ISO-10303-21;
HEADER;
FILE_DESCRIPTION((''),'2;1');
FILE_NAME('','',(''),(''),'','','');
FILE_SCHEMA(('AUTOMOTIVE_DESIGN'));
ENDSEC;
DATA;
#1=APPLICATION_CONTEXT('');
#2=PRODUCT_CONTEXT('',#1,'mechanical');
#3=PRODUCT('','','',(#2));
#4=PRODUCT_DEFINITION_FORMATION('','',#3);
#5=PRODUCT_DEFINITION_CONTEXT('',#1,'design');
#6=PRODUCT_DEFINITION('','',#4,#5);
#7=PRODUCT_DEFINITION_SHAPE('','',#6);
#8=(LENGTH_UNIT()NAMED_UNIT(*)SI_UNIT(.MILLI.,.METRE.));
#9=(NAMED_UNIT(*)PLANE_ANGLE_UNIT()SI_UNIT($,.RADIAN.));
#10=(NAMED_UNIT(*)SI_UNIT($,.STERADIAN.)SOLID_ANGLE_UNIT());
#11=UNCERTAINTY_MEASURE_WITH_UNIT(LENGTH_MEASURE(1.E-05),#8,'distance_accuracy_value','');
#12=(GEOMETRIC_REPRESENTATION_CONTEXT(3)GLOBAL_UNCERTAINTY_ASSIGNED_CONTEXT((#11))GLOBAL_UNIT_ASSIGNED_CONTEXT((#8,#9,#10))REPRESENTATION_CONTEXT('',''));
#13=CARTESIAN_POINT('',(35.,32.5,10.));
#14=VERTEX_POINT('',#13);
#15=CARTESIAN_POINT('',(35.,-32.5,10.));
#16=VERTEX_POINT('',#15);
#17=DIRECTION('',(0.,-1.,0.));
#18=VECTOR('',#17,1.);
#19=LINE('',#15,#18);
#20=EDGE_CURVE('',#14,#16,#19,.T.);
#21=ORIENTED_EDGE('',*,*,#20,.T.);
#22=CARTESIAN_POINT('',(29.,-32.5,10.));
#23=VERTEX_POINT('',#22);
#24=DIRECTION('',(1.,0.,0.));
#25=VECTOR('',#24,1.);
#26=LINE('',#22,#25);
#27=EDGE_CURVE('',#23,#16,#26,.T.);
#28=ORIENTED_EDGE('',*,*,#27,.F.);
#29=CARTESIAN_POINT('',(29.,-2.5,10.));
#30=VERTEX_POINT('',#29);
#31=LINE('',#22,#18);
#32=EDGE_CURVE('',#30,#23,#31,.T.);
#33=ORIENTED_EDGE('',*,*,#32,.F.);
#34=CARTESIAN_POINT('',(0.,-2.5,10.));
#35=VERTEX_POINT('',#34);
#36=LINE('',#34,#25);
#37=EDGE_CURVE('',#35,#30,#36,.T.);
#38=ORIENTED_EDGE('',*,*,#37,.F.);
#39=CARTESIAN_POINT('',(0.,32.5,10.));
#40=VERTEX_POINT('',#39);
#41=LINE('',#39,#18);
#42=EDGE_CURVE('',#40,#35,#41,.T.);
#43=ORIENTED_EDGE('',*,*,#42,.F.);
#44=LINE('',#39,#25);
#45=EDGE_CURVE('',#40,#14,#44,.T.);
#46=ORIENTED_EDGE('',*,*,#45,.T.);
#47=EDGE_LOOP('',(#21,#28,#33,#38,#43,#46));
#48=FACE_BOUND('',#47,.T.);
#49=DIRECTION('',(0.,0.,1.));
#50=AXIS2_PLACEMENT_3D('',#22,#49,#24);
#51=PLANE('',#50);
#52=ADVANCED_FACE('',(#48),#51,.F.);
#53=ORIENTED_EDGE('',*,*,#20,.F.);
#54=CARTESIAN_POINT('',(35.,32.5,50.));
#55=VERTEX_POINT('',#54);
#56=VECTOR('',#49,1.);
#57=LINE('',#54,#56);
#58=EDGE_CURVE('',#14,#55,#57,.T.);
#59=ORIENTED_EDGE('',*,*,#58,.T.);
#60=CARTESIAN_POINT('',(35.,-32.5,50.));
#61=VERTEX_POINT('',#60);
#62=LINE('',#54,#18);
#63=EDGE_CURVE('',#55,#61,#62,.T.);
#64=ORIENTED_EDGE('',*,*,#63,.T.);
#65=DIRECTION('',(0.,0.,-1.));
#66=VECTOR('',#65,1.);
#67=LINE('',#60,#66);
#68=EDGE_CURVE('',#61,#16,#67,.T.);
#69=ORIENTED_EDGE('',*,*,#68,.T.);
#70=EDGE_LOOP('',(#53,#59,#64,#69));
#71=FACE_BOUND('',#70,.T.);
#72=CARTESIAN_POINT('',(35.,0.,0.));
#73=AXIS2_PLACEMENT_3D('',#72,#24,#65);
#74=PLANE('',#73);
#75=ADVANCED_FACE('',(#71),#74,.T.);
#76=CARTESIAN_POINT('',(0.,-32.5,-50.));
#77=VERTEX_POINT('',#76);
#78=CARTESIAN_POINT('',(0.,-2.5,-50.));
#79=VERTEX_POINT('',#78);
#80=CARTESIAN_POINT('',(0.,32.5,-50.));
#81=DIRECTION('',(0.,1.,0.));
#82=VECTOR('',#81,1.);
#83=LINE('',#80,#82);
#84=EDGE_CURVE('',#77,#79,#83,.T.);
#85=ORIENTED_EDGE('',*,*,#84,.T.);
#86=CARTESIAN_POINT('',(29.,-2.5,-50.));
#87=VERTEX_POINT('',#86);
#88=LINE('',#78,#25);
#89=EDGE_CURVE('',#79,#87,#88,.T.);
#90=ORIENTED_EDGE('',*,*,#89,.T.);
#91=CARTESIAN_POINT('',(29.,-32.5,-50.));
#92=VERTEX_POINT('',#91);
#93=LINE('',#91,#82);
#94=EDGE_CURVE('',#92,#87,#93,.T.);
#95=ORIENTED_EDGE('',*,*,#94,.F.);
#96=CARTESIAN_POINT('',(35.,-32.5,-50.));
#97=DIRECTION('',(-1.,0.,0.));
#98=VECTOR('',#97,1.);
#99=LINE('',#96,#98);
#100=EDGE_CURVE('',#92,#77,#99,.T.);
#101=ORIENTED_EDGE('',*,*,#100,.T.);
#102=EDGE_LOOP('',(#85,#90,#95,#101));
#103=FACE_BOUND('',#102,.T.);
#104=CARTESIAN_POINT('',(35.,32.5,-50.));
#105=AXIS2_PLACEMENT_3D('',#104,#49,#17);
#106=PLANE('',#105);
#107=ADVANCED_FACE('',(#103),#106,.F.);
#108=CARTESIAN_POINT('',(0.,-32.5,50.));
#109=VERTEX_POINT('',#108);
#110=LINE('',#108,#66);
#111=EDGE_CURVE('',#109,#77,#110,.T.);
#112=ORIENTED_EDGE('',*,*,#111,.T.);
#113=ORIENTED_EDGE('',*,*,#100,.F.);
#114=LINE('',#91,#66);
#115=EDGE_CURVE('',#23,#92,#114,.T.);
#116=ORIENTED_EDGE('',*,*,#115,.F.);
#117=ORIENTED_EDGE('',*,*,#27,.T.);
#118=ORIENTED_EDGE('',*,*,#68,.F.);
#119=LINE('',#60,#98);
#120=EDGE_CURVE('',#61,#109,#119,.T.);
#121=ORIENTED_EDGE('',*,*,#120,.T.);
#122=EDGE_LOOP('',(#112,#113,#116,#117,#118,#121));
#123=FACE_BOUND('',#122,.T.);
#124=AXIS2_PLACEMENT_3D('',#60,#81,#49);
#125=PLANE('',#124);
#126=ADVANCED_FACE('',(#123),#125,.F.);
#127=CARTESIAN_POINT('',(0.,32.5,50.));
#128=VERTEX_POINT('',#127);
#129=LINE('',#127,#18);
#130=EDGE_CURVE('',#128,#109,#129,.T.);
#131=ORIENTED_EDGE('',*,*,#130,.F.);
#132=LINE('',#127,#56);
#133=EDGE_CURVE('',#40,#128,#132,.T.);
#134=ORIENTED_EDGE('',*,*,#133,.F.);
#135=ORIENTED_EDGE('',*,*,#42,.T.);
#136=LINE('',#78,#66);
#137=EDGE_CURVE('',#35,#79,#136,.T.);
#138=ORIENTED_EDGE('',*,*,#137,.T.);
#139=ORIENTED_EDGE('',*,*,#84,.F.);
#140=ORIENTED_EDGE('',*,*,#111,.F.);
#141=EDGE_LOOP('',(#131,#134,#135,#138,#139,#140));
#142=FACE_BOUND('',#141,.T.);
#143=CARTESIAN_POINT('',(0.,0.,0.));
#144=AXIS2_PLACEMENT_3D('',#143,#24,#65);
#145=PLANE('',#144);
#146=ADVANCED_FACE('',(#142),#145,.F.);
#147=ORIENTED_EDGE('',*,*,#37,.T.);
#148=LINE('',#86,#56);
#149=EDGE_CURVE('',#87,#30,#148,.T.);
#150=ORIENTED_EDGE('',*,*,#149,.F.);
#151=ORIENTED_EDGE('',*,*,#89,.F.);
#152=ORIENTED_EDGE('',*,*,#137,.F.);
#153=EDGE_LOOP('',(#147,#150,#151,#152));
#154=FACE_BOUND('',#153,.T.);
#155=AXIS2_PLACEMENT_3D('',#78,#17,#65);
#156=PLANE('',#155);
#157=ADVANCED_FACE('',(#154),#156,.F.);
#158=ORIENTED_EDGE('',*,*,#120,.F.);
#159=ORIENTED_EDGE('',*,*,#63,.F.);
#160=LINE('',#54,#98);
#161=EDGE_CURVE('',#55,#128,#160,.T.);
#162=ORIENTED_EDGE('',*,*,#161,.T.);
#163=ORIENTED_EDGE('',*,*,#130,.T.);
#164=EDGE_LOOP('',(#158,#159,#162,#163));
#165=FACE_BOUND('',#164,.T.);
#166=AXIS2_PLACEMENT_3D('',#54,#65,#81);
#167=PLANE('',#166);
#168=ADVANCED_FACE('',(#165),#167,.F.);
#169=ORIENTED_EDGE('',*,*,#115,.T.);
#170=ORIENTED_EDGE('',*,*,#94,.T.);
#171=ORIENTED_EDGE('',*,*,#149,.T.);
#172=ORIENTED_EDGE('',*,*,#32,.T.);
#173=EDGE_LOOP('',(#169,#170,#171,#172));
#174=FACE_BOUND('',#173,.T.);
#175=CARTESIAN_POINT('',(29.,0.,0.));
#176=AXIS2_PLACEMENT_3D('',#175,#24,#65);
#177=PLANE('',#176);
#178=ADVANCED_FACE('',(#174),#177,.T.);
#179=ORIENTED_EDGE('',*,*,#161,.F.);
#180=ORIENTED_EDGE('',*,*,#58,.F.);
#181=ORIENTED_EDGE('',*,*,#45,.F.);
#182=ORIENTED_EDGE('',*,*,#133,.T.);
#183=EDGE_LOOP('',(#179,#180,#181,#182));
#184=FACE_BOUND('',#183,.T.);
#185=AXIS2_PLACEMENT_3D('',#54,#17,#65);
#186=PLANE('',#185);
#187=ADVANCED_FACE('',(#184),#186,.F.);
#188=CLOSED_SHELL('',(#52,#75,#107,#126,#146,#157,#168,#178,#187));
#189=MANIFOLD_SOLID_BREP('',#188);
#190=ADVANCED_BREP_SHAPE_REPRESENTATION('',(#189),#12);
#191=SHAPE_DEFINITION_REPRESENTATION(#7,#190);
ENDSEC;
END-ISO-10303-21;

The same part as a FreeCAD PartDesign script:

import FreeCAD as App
import Part
import Sketcher


def add_polygon(sketch, points):
    """Adds a closed chain of lines whose ends are joined by coincident constraints."""
    first, n = sketch.GeometryCount, len(points)
    for a, b in zip(points, points[1:] + points[:1]):
        sketch.addGeometry(Part.LineSegment(App.Vector(*a, 0), App.Vector(*b, 0)), False)
    for i in range(n):
        sketch.addConstraint(Sketcher.Constraint("Coincident", first + i, 2, first + (i + 1) % n, 1))

doc = App.newDocument("Part")
params = doc.addObject("Spreadsheet::Sheet", "Params")
for row, (alias, value) in enumerate([
    ("sketch1_width", "65 mm"),
    ("sketch1_height", "100 mm"),
    ("pad1_length", "35 mm"),
    ("sketch2_width", "30 mm"),
    ("sketch2_height", "60 mm"),
    ("pocket1_length", "6 mm"),
    ("sketch3_width", "35 mm"),
    ("sketch3_height", "60 mm"),
], start=1):
    params.set(f"A{row}", alias)
    params.set(f"B{row}", "=" + value)
    params.setAlias(f"B{row}", alias)

body = doc.addObject("PartDesign::Body", "Body")

# Sketch on YZ plane
sketch1 = doc.addObject("Sketcher::SketchObject", "Sketch")
body.addObject(sketch1)
sketch1.AttachmentSupport = (doc.YZ_Plane, [""])
sketch1.MapMode = "FlatFace"
add_polygon(sketch1, [(32.5, 50), (-32.5, 50), (-32.5, -50), (32.5, -50)])  # lines 0-3
sketch1.addConstraint([
    Sketcher.Constraint("Horizontal", 0),
    Sketcher.Constraint("Vertical", 1),
    Sketcher.Constraint("Horizontal", 2),
    Sketcher.Constraint("Vertical", 3),
    Sketcher.Constraint("Symmetric", 0, 2, 2, 2, -1, 1),
    Sketcher.Constraint("DistanceX", 0, 2, 0, 1, 65.0),
    Sketcher.Constraint("DistanceY", 1, 2, 1, 1, 100.0),
])
sketch1.setExpression("Constraints[9]", "Params.sketch1_width")
sketch1.setExpression("Constraints[10]", "Params.sketch1_height")
pad1 = doc.addObject("PartDesign::Pad", "Pad")
body.addObject(pad1)
pad1.Profile = sketch1
pad1.setExpression("Length", "Params.pad1_length")

# Sketch on YZ plane
sketch2 = doc.addObject("Sketcher::SketchObject", "Sketch001")
body.addObject(sketch2)
sketch2.AttachmentSupport = (doc.YZ_Plane, [""])
sketch2.MapMode = "FlatFace"
sketch2.AttachmentOffset = App.Placement(App.Vector(0, 0, 35), App.Rotation())
add_polygon(sketch2, [(-2.5, 10), (-32.5, 10), (-32.5, -50), (-2.5, -50)])  # lines 0-3
sketch2.addConstraint([
    Sketcher.Constraint("Horizontal", 0),
    Sketcher.Constraint("Vertical", 1),
    Sketcher.Constraint("Horizontal", 2),
    Sketcher.Constraint("Vertical", 3),
    Sketcher.Constraint("DistanceX", 0, 2, 0, 1, 30.0),
    Sketcher.Constraint("DistanceY", 1, 2, 1, 1, 60.0),
    Sketcher.Constraint("DistanceY", -1, 1, 0, 2, 10.0),
    Sketcher.Constraint("DistanceX", 0, 2, -1, 1, 32.5),
])
sketch2.setExpression("Constraints[8]", "Params.sketch2_width")
sketch2.setExpression("Constraints[9]", "Params.sketch2_height")
pocket1 = doc.addObject("PartDesign::Pocket", "Pocket")
body.addObject(pocket1)
pocket1.Profile = sketch2
pocket1.setExpression("Length", "Params.pocket1_length")

# Sketch on YZ plane
sketch3 = doc.addObject("Sketcher::SketchObject", "Sketch002")
body.addObject(sketch3)
sketch3.AttachmentSupport = (doc.YZ_Plane, [""])
sketch3.MapMode = "FlatFace"
sketch3.AttachmentOffset = App.Placement(App.Vector(0, 0, 35), App.Rotation())
add_polygon(sketch3, [(32.5, 10), (-2.5, 10), (-2.5, -50), (32.5, -50)])  # lines 0-3
sketch3.addConstraint([
    Sketcher.Constraint("Horizontal", 0),
    Sketcher.Constraint("Vertical", 1),
    Sketcher.Constraint("Horizontal", 2),
    Sketcher.Constraint("Vertical", 3),
    Sketcher.Constraint("DistanceX", 0, 2, 0, 1, 35.0),
    Sketcher.Constraint("DistanceY", 1, 2, 1, 1, 60.0),
    Sketcher.Constraint("DistanceY", -1, 1, 0, 2, 10.0),
    Sketcher.Constraint("DistanceX", 0, 2, -1, 1, 2.5),
])
sketch3.setExpression("Constraints[8]", "Params.sketch3_width")
sketch3.setExpression("Constraints[9]", "Params.sketch3_height")
pocket2 = doc.addObject("PartDesign::Pocket", "Pocket001")
body.addObject(pocket2)
pocket2.Profile = sketch3
pocket2.Type = "ThroughAll"

doc.recompute()
